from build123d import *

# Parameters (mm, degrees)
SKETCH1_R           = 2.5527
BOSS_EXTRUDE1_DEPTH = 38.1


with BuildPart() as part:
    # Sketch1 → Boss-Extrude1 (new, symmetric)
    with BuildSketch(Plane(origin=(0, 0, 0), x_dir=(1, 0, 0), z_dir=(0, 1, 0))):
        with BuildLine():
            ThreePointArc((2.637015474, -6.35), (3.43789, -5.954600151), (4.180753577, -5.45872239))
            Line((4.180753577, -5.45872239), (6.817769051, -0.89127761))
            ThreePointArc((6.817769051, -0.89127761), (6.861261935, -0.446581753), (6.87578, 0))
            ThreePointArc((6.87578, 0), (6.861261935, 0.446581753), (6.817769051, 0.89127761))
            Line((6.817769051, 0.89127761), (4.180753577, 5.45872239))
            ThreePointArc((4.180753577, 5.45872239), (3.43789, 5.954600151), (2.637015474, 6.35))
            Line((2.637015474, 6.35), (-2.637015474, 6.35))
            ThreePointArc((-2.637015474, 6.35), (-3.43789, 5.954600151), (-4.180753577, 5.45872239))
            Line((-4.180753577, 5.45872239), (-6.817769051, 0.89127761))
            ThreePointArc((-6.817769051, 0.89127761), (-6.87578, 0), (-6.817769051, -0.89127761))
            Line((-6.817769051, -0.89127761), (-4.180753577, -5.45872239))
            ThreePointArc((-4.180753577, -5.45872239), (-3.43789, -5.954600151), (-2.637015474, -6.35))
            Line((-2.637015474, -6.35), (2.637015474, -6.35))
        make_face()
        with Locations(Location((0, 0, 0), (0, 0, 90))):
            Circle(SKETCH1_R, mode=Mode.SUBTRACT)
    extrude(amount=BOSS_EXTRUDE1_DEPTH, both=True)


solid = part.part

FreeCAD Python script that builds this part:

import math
import FreeCAD as App
import Part
import Sketcher

V = App.Vector
Q = App.Units.Quantity

doc = App.newDocument("Part")
params = doc.addObject("Spreadsheet::Sheet", "Params")
for row, (alias, value) in enumerate([
    ("sketch1_diameter", "0.201 in"),
    ("pad1_length", "3 in"),
], start=1):
    params.set(f"A{row}", alias)
    params.set(f"B{row}", "=" + value)
    params.setAlias(f"B{row}", alias)

body = doc.addObject("PartDesign::Body", "Body")

# Sketch on XZ plane
sketch1 = body.newObject("Sketcher::SketchObject", "Sketch")
sketch1.AttachmentSupport = (doc.getObject("XZ_Plane"), [""])
sketch1.MapMode = "FlatFace"
sketch1.addGeometry(Part.ArcOfCircle(Part.Circle(V(0, 0, 0), V(0, 0, 1), 6.87578), math.radians(52.552038), math.radians(67.447962)), False)
sketch1.addGeometry(Part.LineSegment(V(4.180754, 5.458722, 0), V(6.817769, 0.891278, 0)), False)
sketch1.addGeometry(Part.ArcOfCircle(Part.Circle(V(0, 0, 0), V(0, 0, 1), 6.87578), math.radians(0), math.radians(7.447962)), False)
sketch1.addGeometry(Part.ArcOfCircle(Part.Circle(V(0, 0, 0), V(0, 0, 1), 6.87578), math.radians(-7.447962), math.radians(0)), False)
sketch1.addGeometry(Part.LineSegment(V(6.817769, -0.891278, 0), V(4.180754, -5.458722, 0)), False)
sketch1.addGeometry(Part.ArcOfCircle(Part.Circle(V(0, 0, 0), V(0, 0, 1), 6.87578), math.radians(-67.447962), math.radians(-52.552038)), False)
sketch1.addGeometry(Part.LineSegment(V(2.637015, -6.35, 0), V(-2.637015, -6.35, 0)), False)
sketch1.addGeometry(Part.ArcOfCircle(Part.Circle(V(0, 0, 0), V(0, 0, 1), 6.87578), math.radians(-127.447962), math.radians(-112.552038)), False)
sketch1.addGeometry(Part.LineSegment(V(-4.180754, -5.458722, 0), V(-6.817769, -0.891278, 0)), False)
sketch1.addGeometry(Part.ArcOfCircle(Part.Circle(V(0, 0, 0), V(0, 0, 1), 6.87578), math.radians(172.552038), math.radians(187.447962)), False)
sketch1.addGeometry(Part.LineSegment(V(-6.817769, 0.891278, 0), V(-4.180754, 5.458722, 0)), False)
sketch1.addGeometry(Part.ArcOfCircle(Part.Circle(V(0, 0, 0), V(0, 0, 1), 6.87578), math.radians(112.552038), math.radians(127.447962)), False)
sketch1.addGeometry(Part.LineSegment(V(-2.637015, 6.35, 0), V(2.637015, 6.35, 0)), False)
sketch1.addGeometry(Part.Circle(V(0, 0, 0), V(0, 0, 1), 2.5527), False)
sketch1.addConstraint(Sketcher.Constraint("Coincident", 0, 1, 1, 1))
sketch1.addConstraint(Sketcher.Constraint("Coincident", 1, 2, 2, 2))
sketch1.addConstraint(Sketcher.Constraint("Tangent", 2, 1, 3, 2))
sketch1.addConstraint(Sketcher.Constraint("Coincident", 3, 1, 4, 1))
sketch1.addConstraint(Sketcher.Constraint("Coincident", 4, 2, 5, 2))
sketch1.addConstraint(Sketcher.Constraint("Coincident", 5, 1, 6, 1))
sketch1.addConstraint(Sketcher.Constraint("Coincident", 6, 2, 7, 2))
sketch1.addConstraint(Sketcher.Constraint("Coincident", 7, 1, 8, 1))
sketch1.addConstraint(Sketcher.Constraint("Coincident", 8, 2, 9, 2))
sketch1.addConstraint(Sketcher.Constraint("Coincident", 9, 1, 10, 1))
sketch1.addConstraint(Sketcher.Constraint("Coincident", 10, 2, 11, 2))
sketch1.addConstraint(Sketcher.Constraint("Coincident", 11, 1, 12, 1))
sketch1.addConstraint(Sketcher.Constraint("Coincident", 12, 2, 0, 2))
sketch1.addConstraint(Sketcher.Constraint("Horizontal", 6))
sketch1.addConstraint(Sketcher.Constraint("Horizontal", 12))
sketch1.addConstraint(Sketcher.Constraint("Coincident", 0, 3, -1, 1))
sketch1.addConstraint(Sketcher.Constraint("Coincident", 2, 3, -1, 1))
sketch1.addConstraint(Sketcher.Constraint("Coincident", 5, 3, -1, 1))
sketch1.addConstraint(Sketcher.Constraint("Coincident", 7, 3, -1, 1))
sketch1.addConstraint(Sketcher.Constraint("Coincident", 9, 3, -1, 1))
sketch1.addConstraint(Sketcher.Constraint("Coincident", 11, 3, -1, 1))
sketch1.addConstraint(Sketcher.Constraint("Coincident", 13, 3, -1, 1))
sketch1.addConstraint(Sketcher.Constraint("Equal", 0, 2))
sketch1.addConstraint(Sketcher.Constraint("Equal", 2, 3))
sketch1.addConstraint(Sketcher.Constraint("Equal", 3, 5))
sketch1.addConstraint(Sketcher.Constraint("Equal", 5, 7))
sketch1.addConstraint(Sketcher.Constraint("Equal", 7, 9))
sketch1.addConstraint(Sketcher.Constraint("Equal", 9, 11))
sketch1.addConstraint(Sketcher.Constraint("PointOnObject", 2, 1, -1))
sketch1.addConstraint(Sketcher.Constraint("Parallel", 1, 8))
sketch1.addConstraint(Sketcher.Constraint("Parallel", 4, 10))
sketch1.addConstraint(Sketcher.Constraint("Horizontal", 4, 2, 7, 1))
sketch1.addConstraint(Sketcher.Constraint("Horizontal", 3, 1, 8, 2))
sketch1.addConstraint(Sketcher.Constraint("Horizontal", 1, 2, 9, 1))
sketch1.addConstraint(Sketcher.Constraint("Vertical", 1, 2, 3, 1))
sketch1.addConstraint(Sketcher.Constraint("Vertical", 6, 2, 11, 1))
sketch1.addConstraint(Sketcher.Constraint("Diameter", 13, Q("0.201 in")))
sketch1.addConstraint(Sketcher.Constraint("Angle", 1, Q("-60 deg")))
sketch1.addConstraint(Sketcher.Constraint("Radius", 0, Q("0.2707 in")))
sketch1.addConstraint(Sketcher.Constraint("DistanceY", 5, 1, -1, 1, Q("0.25 in")))
sketch1.addConstraint(Sketcher.Constraint("Distance", 1, 5.274031))
sketch1.setExpression("Constraints[36]", "Params.sketch1_diameter")
pad1 = body.newObject("PartDesign::Pad", "Pad")
pad1.Profile = sketch1
pad1.setExpression("Length", "Params.pad1_length")
pad1.Midplane = True

doc.recompute()
